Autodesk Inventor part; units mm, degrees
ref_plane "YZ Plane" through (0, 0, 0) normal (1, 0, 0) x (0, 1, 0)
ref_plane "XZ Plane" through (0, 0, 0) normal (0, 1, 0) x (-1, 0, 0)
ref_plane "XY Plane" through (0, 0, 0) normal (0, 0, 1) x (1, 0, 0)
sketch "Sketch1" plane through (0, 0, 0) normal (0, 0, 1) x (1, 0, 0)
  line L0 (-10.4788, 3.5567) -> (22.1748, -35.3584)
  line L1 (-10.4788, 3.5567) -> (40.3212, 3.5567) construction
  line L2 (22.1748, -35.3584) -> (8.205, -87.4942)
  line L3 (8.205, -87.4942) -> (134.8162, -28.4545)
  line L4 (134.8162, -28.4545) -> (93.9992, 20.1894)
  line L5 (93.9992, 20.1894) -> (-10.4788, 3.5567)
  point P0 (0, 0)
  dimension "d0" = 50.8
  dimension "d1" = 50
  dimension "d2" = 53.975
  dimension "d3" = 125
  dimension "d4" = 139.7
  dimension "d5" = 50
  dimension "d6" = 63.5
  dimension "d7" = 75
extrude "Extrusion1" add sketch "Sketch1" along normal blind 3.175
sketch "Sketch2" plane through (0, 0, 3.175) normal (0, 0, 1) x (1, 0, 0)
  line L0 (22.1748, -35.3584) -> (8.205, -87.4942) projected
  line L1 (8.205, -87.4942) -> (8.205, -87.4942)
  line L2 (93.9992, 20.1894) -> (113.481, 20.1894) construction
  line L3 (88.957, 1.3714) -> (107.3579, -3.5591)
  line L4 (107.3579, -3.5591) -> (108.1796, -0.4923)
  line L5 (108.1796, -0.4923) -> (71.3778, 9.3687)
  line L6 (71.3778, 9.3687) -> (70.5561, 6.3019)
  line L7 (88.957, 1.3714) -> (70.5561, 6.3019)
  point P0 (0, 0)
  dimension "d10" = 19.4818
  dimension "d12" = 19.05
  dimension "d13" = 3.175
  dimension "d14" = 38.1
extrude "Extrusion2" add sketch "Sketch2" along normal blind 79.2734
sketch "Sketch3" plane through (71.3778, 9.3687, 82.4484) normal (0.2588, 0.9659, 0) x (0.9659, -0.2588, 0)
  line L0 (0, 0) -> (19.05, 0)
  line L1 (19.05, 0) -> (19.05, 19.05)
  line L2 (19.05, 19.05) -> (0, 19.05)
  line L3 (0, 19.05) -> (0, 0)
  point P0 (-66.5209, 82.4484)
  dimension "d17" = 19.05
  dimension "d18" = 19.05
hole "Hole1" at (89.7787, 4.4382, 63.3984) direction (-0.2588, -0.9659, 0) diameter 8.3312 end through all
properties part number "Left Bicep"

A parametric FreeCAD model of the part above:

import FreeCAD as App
import Part
import Sketcher

V = App.Vector
Q = App.Units.Quantity

doc = App.newDocument("Part")
body = doc.addObject("PartDesign::Body", "Body")

sketch1 = body.newObject("Sketcher::SketchObject", "Sketch")
sketch1.AttachmentSupport = (doc.getObject("XY_Plane"), [""])
sketch1.MapMode = "FlatFace"
sketch1.addGeometry([
    Part.LineSegment(V(94, 20, 0), V(-10, 4, 0)),
    Part.LineSegment(V(-10, 4, 0), V(22, -35, 0)),
    Part.LineSegment(V(22, -35, 0), V(8, -87, 0)),
    Part.LineSegment(V(8, -87, 0), V(135, -28, 0)),
    Part.LineSegment(V(135, -28, 0), V(94, 20, 0)),
], False)
sketch1.addConstraint([
    Sketcher.Constraint("Coincident", 0, 2, 1, 1),
    Sketcher.Constraint("Coincident", 1, 2, 2, 1),
    Sketcher.Constraint("Coincident", 2, 2, 3, 1),
    Sketcher.Constraint("Coincident", 3, 2, 4, 1),
    Sketcher.Constraint("Coincident", 4, 2, 0, 1),
    Sketcher.Constraint("Parallel", 1, 4),
    Sketcher.Constraint("Distance", 1, Q("2 in")),
    Sketcher.Constraint("Angle", 1, Q("-50 deg")),
    Sketcher.Constraint("Distance", 3, Q("5.5 in")),
    Sketcher.Constraint("Distance", 4, Q("2.5 in")),
    Sketcher.Constraint("Distance", 2, Q("2.125 in")),
    Sketcher.Constraint("Angle", 2, Q("-105 deg")),
    Sketcher.Constraint("Angle", 3, Q("25 deg")),
    Sketcher.Constraint("DistanceX", 0, 2, -1, 1, 10.4788),
    Sketcher.Constraint("DistanceY", -1, 1, 0, 2, 3.5567),
])
pad1 = body.newObject("PartDesign::Pad", "Pad")
pad1.Profile = sketch1
pad1.Length = Q("0.125 in")

sketch2 = body.newObject("Sketcher::SketchObject", "Sketch001")
sketch2.AttachmentSupport = (doc.getObject("XY_Plane"), [""])
sketch2.MapMode = "FlatFace"
sketch2.AttachmentOffset = App.Placement(V(0, 0, 0.125 * 25.4), App.Rotation())
sketch2.addGeometry([
    Part.LineSegment(V(70.6, 6.3, 0), V(107.4, -3.6, 0)),
    Part.LineSegment(V(107.4, -3.6, 0), V(108.2, -0.5, 0)),
    Part.LineSegment(V(108.2, -0.5, 0), V(71.4, 9.4, 0)),
    Part.LineSegment(V(71.4, 9.4, 0), V(70.6, 6.3, 0)),
], False)
sketch2.addConstraint([
    Sketcher.Constraint("Coincident", 0, 2, 1, 1),
    Sketcher.Constraint("Coincident", 1, 2, 2, 1),
    Sketcher.Constraint("Coincident", 2, 2, 3, 1),
    Sketcher.Constraint("Coincident", 3, 2, 0, 1),
    Sketcher.Constraint("Perpendicular", 0, 1),
    Sketcher.Constraint("Perpendicular", 1, 2),
    Sketcher.Constraint("Perpendicular", 2, 3),
    Sketcher.Constraint("Distance", 0, Q("1.5 in")),
    Sketcher.Constraint("Distance", 1, Q("0.125 in")),
    Sketcher.Constraint("Angle", 0, Q("-15 deg")),
    Sketcher.Constraint("DistanceX", -1, 1, 0, 2, Q("4.2267 in")),
    Sketcher.Constraint("DistanceY", -1, 1, 3, 2, Q("0.2481 in")),
])
pad2 = body.newObject("PartDesign::Pad", "Pad001")
pad2.Profile = sketch2
pad2.Length = Q("3.121 in")

sketch3 = body.newObject("Sketcher::SketchObject", "Sketch002")
sketch3.Placement = App.Placement(V(7.123583, 26.585572, 0), App.Rotation(V(-0.965925826, 0.258819045, 0), V(0, 0, 0.999999999), V(0.258819045, 0.965925826, 0), "ZXY"))
sketch3.addGeometry(Part.Circle(V(-85.6, 63.4, 0), V(0, 0, 1), 4.2), False)
sketch3.addConstraint([
    Sketcher.Constraint("Diameter", 0, Q("0.328 in")),
    Sketcher.Constraint("DistanceY", -1, 1, 0, 3, Q("2.496 in")),
    Sketcher.Constraint("DistanceX", 0, 3, -1, 1, 85.5709),
])
doc.recompute()
hole = body.newObject("PartDesign::Hole", "Hole")
hole.Profile = sketch3
hole.ThreadType = "None"
hole.Diameter = Q("0.328 in")
hole.DepthType = "ThroughAll"

doc.recompute()
